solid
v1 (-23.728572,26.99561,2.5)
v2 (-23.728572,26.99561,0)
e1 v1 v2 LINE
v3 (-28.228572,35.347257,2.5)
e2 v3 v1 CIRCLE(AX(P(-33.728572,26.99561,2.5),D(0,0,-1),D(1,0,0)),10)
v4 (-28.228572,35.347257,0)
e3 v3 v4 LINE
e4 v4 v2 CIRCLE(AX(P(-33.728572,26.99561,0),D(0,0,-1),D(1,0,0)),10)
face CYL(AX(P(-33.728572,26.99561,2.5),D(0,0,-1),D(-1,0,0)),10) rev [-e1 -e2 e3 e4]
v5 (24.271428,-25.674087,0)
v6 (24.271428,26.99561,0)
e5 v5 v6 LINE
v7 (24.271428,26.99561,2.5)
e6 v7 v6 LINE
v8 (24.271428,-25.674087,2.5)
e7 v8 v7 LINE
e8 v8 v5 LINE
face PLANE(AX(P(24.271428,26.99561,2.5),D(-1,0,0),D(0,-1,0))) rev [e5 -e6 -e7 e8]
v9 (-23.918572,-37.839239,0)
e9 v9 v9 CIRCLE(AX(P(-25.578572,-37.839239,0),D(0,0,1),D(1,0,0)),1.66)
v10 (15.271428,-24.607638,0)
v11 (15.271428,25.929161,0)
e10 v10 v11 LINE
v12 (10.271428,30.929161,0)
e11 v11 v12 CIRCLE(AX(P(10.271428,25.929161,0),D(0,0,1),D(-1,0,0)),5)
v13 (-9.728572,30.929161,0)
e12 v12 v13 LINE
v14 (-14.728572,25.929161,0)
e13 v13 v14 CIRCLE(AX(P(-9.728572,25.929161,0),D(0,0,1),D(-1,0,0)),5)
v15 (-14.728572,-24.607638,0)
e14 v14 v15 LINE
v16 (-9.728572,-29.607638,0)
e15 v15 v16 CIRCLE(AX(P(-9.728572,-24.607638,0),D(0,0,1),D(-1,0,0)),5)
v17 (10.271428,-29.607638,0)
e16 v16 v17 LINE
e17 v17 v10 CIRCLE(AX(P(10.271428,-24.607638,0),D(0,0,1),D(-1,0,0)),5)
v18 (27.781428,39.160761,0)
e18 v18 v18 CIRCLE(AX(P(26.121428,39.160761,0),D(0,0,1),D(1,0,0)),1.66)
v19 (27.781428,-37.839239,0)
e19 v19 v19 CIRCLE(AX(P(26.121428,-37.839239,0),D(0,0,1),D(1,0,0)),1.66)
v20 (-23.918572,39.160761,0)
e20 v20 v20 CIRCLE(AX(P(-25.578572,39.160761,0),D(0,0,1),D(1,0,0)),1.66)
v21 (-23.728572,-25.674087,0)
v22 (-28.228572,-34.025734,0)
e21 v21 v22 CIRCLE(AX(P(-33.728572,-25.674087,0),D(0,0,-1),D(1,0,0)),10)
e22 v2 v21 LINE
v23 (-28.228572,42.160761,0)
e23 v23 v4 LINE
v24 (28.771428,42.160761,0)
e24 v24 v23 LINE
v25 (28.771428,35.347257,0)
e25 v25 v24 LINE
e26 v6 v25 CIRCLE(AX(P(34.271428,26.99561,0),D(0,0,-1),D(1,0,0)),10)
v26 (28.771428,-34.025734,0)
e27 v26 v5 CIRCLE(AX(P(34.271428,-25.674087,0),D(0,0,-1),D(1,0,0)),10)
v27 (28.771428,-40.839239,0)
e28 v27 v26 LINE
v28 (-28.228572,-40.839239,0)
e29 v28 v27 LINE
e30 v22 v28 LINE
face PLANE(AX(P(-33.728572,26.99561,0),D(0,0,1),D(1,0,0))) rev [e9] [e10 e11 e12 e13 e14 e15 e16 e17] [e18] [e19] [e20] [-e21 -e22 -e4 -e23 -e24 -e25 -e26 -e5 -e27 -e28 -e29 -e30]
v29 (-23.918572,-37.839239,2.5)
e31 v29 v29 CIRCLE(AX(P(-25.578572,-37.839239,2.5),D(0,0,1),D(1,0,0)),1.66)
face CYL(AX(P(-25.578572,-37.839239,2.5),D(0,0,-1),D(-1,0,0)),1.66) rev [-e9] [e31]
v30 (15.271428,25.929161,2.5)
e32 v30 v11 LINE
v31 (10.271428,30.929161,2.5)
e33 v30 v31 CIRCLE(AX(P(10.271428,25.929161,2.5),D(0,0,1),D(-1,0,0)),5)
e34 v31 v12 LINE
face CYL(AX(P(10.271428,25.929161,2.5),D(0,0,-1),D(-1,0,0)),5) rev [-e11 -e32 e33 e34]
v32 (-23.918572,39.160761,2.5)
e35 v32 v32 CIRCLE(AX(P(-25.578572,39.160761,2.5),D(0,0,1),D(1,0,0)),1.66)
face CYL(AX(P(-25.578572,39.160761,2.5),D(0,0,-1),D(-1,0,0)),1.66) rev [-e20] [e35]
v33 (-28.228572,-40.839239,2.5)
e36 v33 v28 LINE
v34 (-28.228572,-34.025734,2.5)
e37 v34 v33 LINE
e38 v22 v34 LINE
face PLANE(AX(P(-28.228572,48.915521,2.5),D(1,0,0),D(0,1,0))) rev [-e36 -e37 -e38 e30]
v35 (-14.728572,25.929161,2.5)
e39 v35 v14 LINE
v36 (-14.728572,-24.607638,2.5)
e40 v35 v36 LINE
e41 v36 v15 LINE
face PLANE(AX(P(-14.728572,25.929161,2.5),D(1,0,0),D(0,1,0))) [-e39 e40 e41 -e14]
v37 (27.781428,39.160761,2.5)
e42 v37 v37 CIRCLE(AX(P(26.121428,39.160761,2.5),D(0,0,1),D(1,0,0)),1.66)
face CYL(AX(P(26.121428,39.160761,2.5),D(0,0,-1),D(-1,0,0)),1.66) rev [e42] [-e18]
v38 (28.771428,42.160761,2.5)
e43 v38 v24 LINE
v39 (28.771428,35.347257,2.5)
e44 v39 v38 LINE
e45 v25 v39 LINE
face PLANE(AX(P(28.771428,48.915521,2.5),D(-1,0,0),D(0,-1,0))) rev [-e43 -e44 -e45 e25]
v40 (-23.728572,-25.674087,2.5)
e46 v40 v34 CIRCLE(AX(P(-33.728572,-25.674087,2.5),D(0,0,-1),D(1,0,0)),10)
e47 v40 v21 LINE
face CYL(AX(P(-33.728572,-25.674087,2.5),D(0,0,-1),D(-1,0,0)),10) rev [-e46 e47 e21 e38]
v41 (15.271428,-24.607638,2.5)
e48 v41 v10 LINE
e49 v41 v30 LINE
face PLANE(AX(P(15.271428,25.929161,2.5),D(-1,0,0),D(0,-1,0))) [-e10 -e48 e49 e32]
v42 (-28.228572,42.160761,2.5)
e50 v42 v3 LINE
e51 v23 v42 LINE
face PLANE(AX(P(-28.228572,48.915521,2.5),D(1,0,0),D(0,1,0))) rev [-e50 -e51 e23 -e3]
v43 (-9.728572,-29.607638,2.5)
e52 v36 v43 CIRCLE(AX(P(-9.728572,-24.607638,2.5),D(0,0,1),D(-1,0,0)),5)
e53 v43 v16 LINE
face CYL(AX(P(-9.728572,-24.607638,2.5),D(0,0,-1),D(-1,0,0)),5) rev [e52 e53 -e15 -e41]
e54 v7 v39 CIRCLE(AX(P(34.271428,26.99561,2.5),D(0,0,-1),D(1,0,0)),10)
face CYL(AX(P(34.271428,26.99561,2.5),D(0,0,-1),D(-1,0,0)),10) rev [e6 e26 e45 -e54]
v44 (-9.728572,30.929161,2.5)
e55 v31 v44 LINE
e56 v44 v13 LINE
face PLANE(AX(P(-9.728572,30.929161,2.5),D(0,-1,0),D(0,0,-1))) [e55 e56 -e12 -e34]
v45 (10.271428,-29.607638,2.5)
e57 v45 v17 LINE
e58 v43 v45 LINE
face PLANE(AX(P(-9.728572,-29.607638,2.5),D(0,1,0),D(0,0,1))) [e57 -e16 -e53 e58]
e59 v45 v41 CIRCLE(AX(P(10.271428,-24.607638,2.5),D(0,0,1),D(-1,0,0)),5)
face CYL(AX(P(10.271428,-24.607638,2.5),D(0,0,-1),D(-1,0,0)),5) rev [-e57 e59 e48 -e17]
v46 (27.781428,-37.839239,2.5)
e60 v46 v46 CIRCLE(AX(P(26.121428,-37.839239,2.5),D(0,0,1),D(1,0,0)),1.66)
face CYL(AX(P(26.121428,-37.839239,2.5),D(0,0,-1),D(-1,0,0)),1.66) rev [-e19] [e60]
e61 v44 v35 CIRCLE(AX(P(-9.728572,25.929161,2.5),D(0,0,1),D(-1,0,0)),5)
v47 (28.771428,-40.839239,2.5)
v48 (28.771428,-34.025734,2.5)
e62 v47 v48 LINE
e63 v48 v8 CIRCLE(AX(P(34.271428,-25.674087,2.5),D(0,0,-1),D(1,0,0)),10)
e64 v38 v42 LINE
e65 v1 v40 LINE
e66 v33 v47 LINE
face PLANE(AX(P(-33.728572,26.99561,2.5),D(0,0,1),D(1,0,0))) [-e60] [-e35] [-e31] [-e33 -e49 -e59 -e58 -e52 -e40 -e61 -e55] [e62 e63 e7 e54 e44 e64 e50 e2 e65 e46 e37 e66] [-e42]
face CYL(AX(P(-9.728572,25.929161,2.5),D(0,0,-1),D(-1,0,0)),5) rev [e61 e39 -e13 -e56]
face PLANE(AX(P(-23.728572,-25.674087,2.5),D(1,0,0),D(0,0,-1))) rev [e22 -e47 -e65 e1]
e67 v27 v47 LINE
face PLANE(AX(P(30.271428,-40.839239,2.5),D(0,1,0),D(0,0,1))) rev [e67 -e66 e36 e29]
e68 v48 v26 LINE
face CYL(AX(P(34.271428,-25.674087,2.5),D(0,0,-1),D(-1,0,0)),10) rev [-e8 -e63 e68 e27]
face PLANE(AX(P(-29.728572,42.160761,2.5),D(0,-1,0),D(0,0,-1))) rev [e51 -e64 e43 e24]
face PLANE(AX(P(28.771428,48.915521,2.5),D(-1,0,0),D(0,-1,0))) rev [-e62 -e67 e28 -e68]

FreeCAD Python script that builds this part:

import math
import FreeCAD as App
import Part
import Sketcher

V = App.Vector
Q = App.Units.Quantity


def add_polygon(sketch, points):
    """Adds a closed chain of lines whose ends are joined by coincident constraints."""
    first, n = sketch.GeometryCount, len(points)
    for a, b in zip(points, points[1:] + points[:1]):
        sketch.addGeometry(Part.LineSegment(App.Vector(*a, 0), App.Vector(*b, 0)), False)
    for i in range(n):
        sketch.addConstraint(Sketcher.Constraint("Coincident", first + i, 2, first + (i + 1) % n, 1))

doc = App.newDocument("Part")
body = doc.addObject("PartDesign::Body", "Body")

sketch1 = body.newObject("Sketcher::SketchObject", "Sketch")
sketch1.AttachmentSupport = (doc.getObject("XY_Plane"), [""])
sketch1.MapMode = "FlatFace"
sketch1.addGeometry([
    Part.LineSegment(V(30.3, 42.2, 0), V(-29.7, 42.2, 0)),
    Part.LineSegment(V(-29.7, 42.2, 0), V(-29.7, 36.2, 0)),
    Part.ArcOfCircle(Part.Circle(V(-33.7, 27, 0), V(0, 0, 1), 10), math.radians(0), math.radians(66)),
    Part.LineSegment(V(-23.7, 27, 0), V(-23.7, -25.7, 0)),
    Part.ArcOfCircle(Part.Circle(V(-33.7, -25.7, 0), V(0, 0, 1), 10), math.radians(-66), math.radians(0)),
    Part.LineSegment(V(-29.7, -34.8, 0), V(-29.7, -40.8, 0)),
    Part.LineSegment(V(-29.7, -40.8, 0), V(30.3, -40.8, 0)),
    Part.LineSegment(V(30.3, -40.8, 0), V(30.3, -34.8, 0)),
    Part.ArcOfCircle(Part.Circle(V(34.3, -25.7, 0), V(0, 0, 1), 10), math.radians(180), math.radians(246)),
    Part.LineSegment(V(24.3, -25.7, 0), V(24.3, 27, 0)),
    Part.ArcOfCircle(Part.Circle(V(34.3, 27, 0), V(0, 0, 1), 10), math.radians(114), math.radians(180)),
    Part.LineSegment(V(30.3, 36.2, 0), V(30.3, 42.2, 0)),
    Part.Circle(V(26.1, -37.8, 0), V(0, 0, 1), 1.7),
    Part.Circle(V(-25.6, -37.8, 0), V(0, 0, 1), 1.7),
    Part.LineSegment(V(-9.7, 30.9, 0), V(10.3, 30.9, 0)),
    Part.ArcOfCircle(Part.Circle(V(10.3, 25.9, 0), V(0, 0, 1), 5), math.radians(0), math.radians(90)),
    Part.LineSegment(V(15.3, 25.9, 0), V(15.3, -24.6, 0)),
    Part.ArcOfCircle(Part.Circle(V(10.3, -24.6, 0), V(0, 0, 1), 5), math.radians(-90), math.radians(0)),
    Part.LineSegment(V(10.3, -29.6, 0), V(-9.7, -29.6, 0)),
    Part.ArcOfCircle(Part.Circle(V(-9.7, -24.6, 0), V(0, 0, 1), 5), math.radians(180), math.radians(270)),
    Part.LineSegment(V(-14.7, -24.6, 0), V(-14.7, 25.9, 0)),
    Part.ArcOfCircle(Part.Circle(V(-9.7, 25.9, 0), V(0, 0, 1), 5), math.radians(90), math.radians(180)),
    Part.Circle(V(26.1, 39.2, 0), V(0, 0, 1), 1.7),
    Part.Circle(V(-25.6, 39.2, 0), V(0, 0, 1), 1.7),
], False)
sketch1.addConstraint([
    Sketcher.Constraint("Coincident", 0, 2, 1, 1),
    Sketcher.Constraint("Coincident", 1, 2, 2, 2),
    Sketcher.Constraint("Tangent", 2, 1, 3, 1),
    Sketcher.Constraint("Tangent", 3, 2, 4, 2),
    Sketcher.Constraint("Coincident", 4, 1, 5, 1),
    Sketcher.Constraint("Coincident", 5, 2, 6, 1),
    Sketcher.Constraint("Coincident", 6, 2, 7, 1),
    Sketcher.Constraint("Coincident", 7, 2, 8, 2),
    Sketcher.Constraint("Tangent", 8, 1, 9, 1),
    Sketcher.Constraint("Tangent", 9, 2, 10, 2),
    Sketcher.Constraint("Coincident", 10, 1, 11, 1),
    Sketcher.Constraint("Coincident", 11, 2, 0, 1),
    Sketcher.Constraint("Tangent", 14, 2, 15, 2),
    Sketcher.Constraint("Tangent", 15, 1, 16, 1),
    Sketcher.Constraint("Tangent", 16, 2, 17, 2),
    Sketcher.Constraint("Tangent", 17, 1, 18, 1),
    Sketcher.Constraint("Tangent", 18, 2, 19, 2),
    Sketcher.Constraint("Tangent", 19, 1, 20, 1),
    Sketcher.Constraint("Tangent", 20, 2, 21, 2),
    Sketcher.Constraint("Tangent", 21, 1, 14, 1),
    Sketcher.Constraint("Horizontal", 0),
    Sketcher.Constraint("Vertical", 1),
    Sketcher.Constraint("Vertical", 3),
    Sketcher.Constraint("Vertical", 5),
    Sketcher.Constraint("Horizontal", 6),
    Sketcher.Constraint("Vertical", 7),
    Sketcher.Constraint("Vertical", 9),
    Sketcher.Constraint("Vertical", 11),
    Sketcher.Constraint("Horizontal", 14),
    Sketcher.Constraint("Vertical", 16),
    Sketcher.Constraint("Horizontal", 18),
    Sketcher.Constraint("Vertical", 20),
    Sketcher.Constraint("Equal", 2, 4),
    Sketcher.Constraint("Equal", 4, 8),
    Sketcher.Constraint("Equal", 8, 10),
    Sketcher.Constraint("Equal", 12, 13),
    Sketcher.Constraint("Equal", 15, 17),
    Sketcher.Constraint("Equal", 17, 19),
    Sketcher.Constraint("Equal", 19, 21),
    Sketcher.Constraint("Equal", 13, 22),
    Sketcher.Constraint("Equal", 22, 23),
    Sketcher.Constraint("Horizontal", 4, 3, 8, 3),
    Sketcher.Constraint("Horizontal", 2, 3, 10, 3),
    Sketcher.Constraint("Horizontal", 12, 3, 13, 3),
    Sketcher.Constraint("Horizontal", 22, 3, 23, 3),
    Sketcher.Constraint("Horizontal", 4, 1, 7, 2),
    Sketcher.Constraint("Horizontal", 1, 2, 10, 1),
    Sketcher.Constraint("Vertical", 12, 3, 22, 3),
    Sketcher.Constraint("Vertical", 13, 3, 23, 3),
    Sketcher.Constraint("Vertical", 1, 2, 4, 1),
    Sketcher.Constraint("Equal", 1, 5),
    Sketcher.Constraint("Radius", 2, Q("10 mm")),
    Sketcher.Constraint("Radius", 15, Q("5 mm")),
    Sketcher.Constraint("Diameter", 12, Q("3.32 mm")),
    Sketcher.Constraint("DistanceX", 0, 2, 0, 1, Q("60 mm")),
    Sketcher.Constraint("DistanceX", 14, 1, 14, 2, Q("20 mm")),
    Sketcher.Constraint("DistanceY", 1, 2, 1, 1, Q("6 mm")),
    Sketcher.Constraint("DistanceX", 4, 3, 8, 3, Q("68 mm")),
    Sketcher.Constraint("DistanceX", 15, 3, 10, 3, Q("24 mm")),
    Sketcher.Constraint("DistanceY", 23, 3, 0, 2, Q("3 mm")),
    Sketcher.Constraint("DistanceY", 13, 3, 4, 1, Q("3 mm")),
    Sketcher.Constraint("DistanceX", 13, 3, 12, 3, Q("51.7 mm")),
    Sketcher.Constraint("DistanceX", 12, 3, 8, 3, Q("8.15 mm")),
    Sketcher.Constraint("DistanceY", 16, 2, 16, 1, Q("50.5368 mm")),
    Sketcher.Constraint("DistanceY", 12, 3, 15, 3, Q("63.7684 mm")),
    Sketcher.Constraint("DistanceY", 15, 3, 22, 3, Q("13.2316 mm")),
    Sketcher.Constraint("DistanceY", -1, 1, 2, 3, Q("26.99561 mm")),
    Sketcher.Constraint("DistanceX", 2, 3, -1, 1, Q("33.728572 mm")),
])
pad1 = body.newObject("PartDesign::Pad", "Pad")
pad1.Profile = sketch1
pad1.Length = 2.5

sketch2 = body.newObject("Sketcher::SketchObject", "Sketch001")
sketch2.AttachmentSupport = (doc.getObject("XY_Plane"), [""])
sketch2.MapMode = "FlatFace"
add_polygon(sketch2, [(42, 49), (42, -48), (29, -48), (29, 49)])
add_polygon(sketch2, [(-28, 49), (-28, -48), (-41, -48), (-41, 49)])
sketch2.addConstraint([
    Sketcher.Constraint("Vertical", 0),
    Sketcher.Constraint("Horizontal", 1),
    Sketcher.Constraint("Vertical", 2),
    Sketcher.Constraint("Horizontal", 3),
    Sketcher.Constraint("Vertical", 4),
    Sketcher.Constraint("Horizontal", 5),
    Sketcher.Constraint("Vertical", 6),
    Sketcher.Constraint("Horizontal", 7),
    Sketcher.Constraint("Horizontal", 1, 2, 4, 2),
    Sketcher.Constraint("Horizontal", 3, 2, 6, 2),
    Sketcher.Constraint("Equal", 3, 5),
    Sketcher.Constraint("DistanceX", 4, 2, 1, 2, Q("57 mm")),
    Sketcher.Constraint("DistanceY", 0, 2, 0, 1, Q("97.305441 mm")),
    Sketcher.Constraint("DistanceX", 1, 2, 1, 1, Q("13.135597 mm")),
    Sketcher.Constraint("DistanceY", 0, 2, -1, 1, Q("48.38992 mm")),
    Sketcher.Constraint("DistanceX", 5, 2, -1, 1, Q("41.364169 mm")),
])
pocket1 = body.newObject("PartDesign::Pocket", "Pocket")
pocket1.Profile = sketch2
pocket1.Type = "ThroughAll"
pocket1.Reversed = True

doc.recompute()
